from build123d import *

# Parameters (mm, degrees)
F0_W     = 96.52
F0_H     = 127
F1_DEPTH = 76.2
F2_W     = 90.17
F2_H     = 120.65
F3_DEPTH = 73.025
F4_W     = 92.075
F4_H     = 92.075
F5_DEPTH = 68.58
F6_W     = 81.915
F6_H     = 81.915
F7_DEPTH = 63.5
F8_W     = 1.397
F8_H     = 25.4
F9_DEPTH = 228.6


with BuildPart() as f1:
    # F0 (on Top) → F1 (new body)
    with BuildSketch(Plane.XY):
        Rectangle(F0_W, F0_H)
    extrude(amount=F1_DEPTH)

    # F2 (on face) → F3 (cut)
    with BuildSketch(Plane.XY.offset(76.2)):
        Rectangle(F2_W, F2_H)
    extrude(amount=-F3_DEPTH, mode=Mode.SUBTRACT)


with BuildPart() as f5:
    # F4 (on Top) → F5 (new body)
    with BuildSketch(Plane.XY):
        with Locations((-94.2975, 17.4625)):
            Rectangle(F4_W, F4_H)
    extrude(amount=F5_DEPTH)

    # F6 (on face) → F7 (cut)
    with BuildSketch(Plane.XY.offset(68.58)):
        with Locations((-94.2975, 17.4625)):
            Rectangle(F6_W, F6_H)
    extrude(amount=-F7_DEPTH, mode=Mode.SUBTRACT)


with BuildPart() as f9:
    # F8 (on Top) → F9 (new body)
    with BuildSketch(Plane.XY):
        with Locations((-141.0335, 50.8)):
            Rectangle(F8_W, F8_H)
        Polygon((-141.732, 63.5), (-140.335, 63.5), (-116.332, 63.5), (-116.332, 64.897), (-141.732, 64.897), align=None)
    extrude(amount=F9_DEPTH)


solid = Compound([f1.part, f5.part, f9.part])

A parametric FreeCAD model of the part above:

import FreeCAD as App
import Part
import Sketcher

V = App.Vector
Q = App.Units.Quantity

doc = App.newDocument("Part")
params = doc.addObject("Spreadsheet::Sheet", "Params")
for row, (alias, value) in enumerate([
    ("sketch1_height", "5 in"),
    ("sketch1_width", "3.8 in"),
    ("pad1_length", "3 in"),
    ("sketch2_width", "3.55 in"),
    ("sketch2_height", "4.75 in"),
    ("pocket1_length", "2.875 in"),
    ("sketch3_width", "3.625 in"),
    ("pad2_length", "2.7 in"),
    ("sketch4_width", "3.225 in"),
    ("pocket2_length", "2.5 in"),
    ("sketch5_width", "1 in"),
    ("sketch5_width2", "0.055 in"),
    ("pad3_length", "9 in"),
], start=1):
    params.set(f"A{row}", alias)
    params.set(f"B{row}", "=" + value)
    params.setAlias(f"B{row}", alias)

body = doc.addObject("PartDesign::Body", "Body")

sketch1 = doc.addObject("Sketcher::SketchObject", "Sketch")
body.addObject(sketch1)
sketch1.AttachmentSupport = (doc.XY_Plane, [""])
sketch1.MapMode = "FlatFace"
sketch1.addGeometry([
    Part.LineSegment(V(-48, 64, 0), V(-48, -64, 0)),
    Part.LineSegment(V(-48, -64, 0), V(48, -64, 0)),
    Part.LineSegment(V(48, -64, 0), V(48, 64, 0)),
    Part.LineSegment(V(48, 64, 0), V(-48, 64, 0)),
], False)
sketch1.addConstraint([
    Sketcher.Constraint("Coincident", 0, 2, 1, 1),
    Sketcher.Constraint("Coincident", 1, 2, 2, 1),
    Sketcher.Constraint("Coincident", 2, 2, 3, 1),
    Sketcher.Constraint("Coincident", 3, 2, 0, 1),
    Sketcher.Constraint("Vertical", 0),
    Sketcher.Constraint("Horizontal", 1),
    Sketcher.Constraint("Vertical", 2),
    Sketcher.Constraint("Horizontal", 3),
    Sketcher.Constraint("Symmetric", 0, 2, 2, 2, -1, 1),
    Sketcher.Constraint("DistanceY", 0, 2, 0, 1, Q("5 in")),
    Sketcher.Constraint("DistanceX", 1, 1, 1, 2, Q("3.8 in")),
])
sketch1.setExpression("Constraints[9]", "Params.sketch1_height")
sketch1.setExpression("Constraints[10]", "Params.sketch1_width")
pad1 = doc.addObject("PartDesign::Pad", "Pad")
body.addObject(pad1)
pad1.Profile = sketch1
pad1.setExpression("Length", "Params.pad1_length")

sketch2 = doc.addObject("Sketcher::SketchObject", "Sketch001")
body.addObject(sketch2)
sketch2.AttachmentSupport = (doc.XY_Plane, [""])
sketch2.MapMode = "FlatFace"
sketch2.AttachmentOffset = App.Placement(V(0, 0, 3 * 25.4), App.Rotation())
sketch2.addGeometry([
    Part.LineSegment(V(-45, 60, 0), V(-45, -60, 0)),
    Part.LineSegment(V(-45, -60, 0), V(45, -60, 0)),
    Part.LineSegment(V(45, -60, 0), V(45, 60, 0)),
    Part.LineSegment(V(45, 60, 0), V(-45, 60, 0)),
], False)
sketch2.addConstraint([
    Sketcher.Constraint("Coincident", 0, 2, 1, 1),
    Sketcher.Constraint("Coincident", 1, 2, 2, 1),
    Sketcher.Constraint("Coincident", 2, 2, 3, 1),
    Sketcher.Constraint("Coincident", 3, 2, 0, 1),
    Sketcher.Constraint("Vertical", 0),
    Sketcher.Constraint("Horizontal", 1),
    Sketcher.Constraint("Vertical", 2),
    Sketcher.Constraint("Horizontal", 3),
    Sketcher.Constraint("Symmetric", 0, 2, 2, 2, -1, 1),
    Sketcher.Constraint("DistanceX", 1, 1, 1, 2, Q("3.55 in")),
    Sketcher.Constraint("DistanceY", 0, 2, 0, 1, Q("4.75 in")),
])
sketch2.setExpression("Constraints[9]", "Params.sketch2_width")
sketch2.setExpression("Constraints[10]", "Params.sketch2_height")
pocket1 = doc.addObject("PartDesign::Pocket", "Pocket")
body.addObject(pocket1)
pocket1.Profile = sketch2
pocket1.setExpression("Length", "Params.pocket1_length")
body2 = doc.addObject("PartDesign::Body", "Body001")

sketch3 = doc.addObject("Sketcher::SketchObject", "Sketch002")
body2.addObject(sketch3)
sketch3.AttachmentSupport = (doc.getObject("XY_Plane001"), [""])
sketch3.MapMode = "FlatFace"
sketch3.addGeometry([
    Part.LineSegment(V(-140, 64, 0), V(-140, -29, 0)),
    Part.LineSegment(V(-140, -29, 0), V(-48, -29, 0)),
    Part.LineSegment(V(-48, -29, 0), V(-48, 64, 0)),
    Part.LineSegment(V(-48, 64, 0), V(-140, 64, 0)),
], False)
sketch3.addConstraint([
    Sketcher.Constraint("Coincident", 0, 2, 1, 1),
    Sketcher.Constraint("Coincident", 1, 2, 2, 1),
    Sketcher.Constraint("Coincident", 2, 2, 3, 1),
    Sketcher.Constraint("Coincident", 3, 2, 0, 1),
    Sketcher.Constraint("Vertical", 0),
    Sketcher.Constraint("Horizontal", 1),
    Sketcher.Constraint("Vertical", 2),
    Sketcher.Constraint("Horizontal", 3),
    Sketcher.Constraint("Equal", 3, 0),
    Sketcher.Constraint("DistanceX", 1, 2, -1, 1, Q("1.9 in")),
    Sketcher.Constraint("DistanceY", -1, 1, 2, 2, Q("2.5 in")),
    Sketcher.Constraint("DistanceX", 1, 1, 1, 2, Q("3.625 in")),
])
sketch3.setExpression("Constraints[11]", "Params.sketch3_width")
pad2 = doc.addObject("PartDesign::Pad", "Pad001")
body2.addObject(pad2)
pad2.Profile = sketch3
pad2.setExpression("Length", "Params.pad2_length")

sketch4 = doc.addObject("Sketcher::SketchObject", "Sketch003")
body2.addObject(sketch4)
sketch4.AttachmentSupport = (doc.getObject("XY_Plane001"), [""])
sketch4.MapMode = "FlatFace"
sketch4.AttachmentOffset = App.Placement(V(0, 0, 2.7 * 25.4), App.Rotation())
sketch4.addGeometry([
    Part.LineSegment(V(-135, 58, 0), V(-135, -23, 0)),
    Part.LineSegment(V(-135, -23, 0), V(-53, -23, 0)),
    Part.LineSegment(V(-53, -23, 0), V(-53, 58, 0)),
    Part.LineSegment(V(-53, 58, 0), V(-135, 58, 0)),
], False)
sketch4.addConstraint([
    Sketcher.Constraint("Coincident", 0, 2, 1, 1),
    Sketcher.Constraint("Coincident", 1, 2, 2, 1),
    Sketcher.Constraint("Coincident", 2, 2, 3, 1),
    Sketcher.Constraint("Coincident", 3, 2, 0, 1),
    Sketcher.Constraint("Vertical", 0),
    Sketcher.Constraint("Horizontal", 1),
    Sketcher.Constraint("Vertical", 2),
    Sketcher.Constraint("Horizontal", 3),
    Sketcher.Constraint("Equal", 3, 0),
    Sketcher.Constraint("DistanceX", 1, 2, -1, 1, Q("2.1 in")),
    Sketcher.Constraint("DistanceY", -1, 1, 2, 2, Q("2.3 in")),
    Sketcher.Constraint("DistanceX", 1, 1, 1, 2, Q("3.225 in")),
])
sketch4.setExpression("Constraints[11]", "Params.sketch4_width")
pocket2 = doc.addObject("PartDesign::Pocket", "Pocket001")
body2.addObject(pocket2)
pocket2.Profile = sketch4
pocket2.setExpression("Length", "Params.pocket2_length")
body3 = doc.addObject("PartDesign::Body", "Body002")

sketch5 = doc.addObject("Sketcher::SketchObject", "Sketch004")
body3.addObject(sketch5)
sketch5.AttachmentSupport = (doc.getObject("XY_Plane002"), [""])
sketch5.MapMode = "FlatFace"
sketch5.addGeometry([
    Part.LineSegment(V(-141.7, 38.1, 0), V(-140.3, 38.1, 0)),
    Part.LineSegment(V(-140.3, 38.1, 0), V(-140.3, 63.5, 0)),
    Part.LineSegment(V(-140.3, 63.5, 0), V(-116.3, 63.5, 0)),
    Part.LineSegment(V(-116.3, 63.5, 0), V(-116.3, 64.9, 0)),
    Part.LineSegment(V(-116.3, 64.9, 0), V(-141.7, 64.9, 0)),
    Part.LineSegment(V(-141.7, 64.9, 0), V(-141.7, 38.1, 0)),
], False)
sketch5.addConstraint([
    Sketcher.Constraint("Coincident", 0, 2, 1, 1),
    Sketcher.Constraint("Coincident", 1, 2, 2, 1),
    Sketcher.Constraint("Coincident", 2, 2, 3, 1),
    Sketcher.Constraint("Coincident", 3, 2, 4, 1),
    Sketcher.Constraint("Coincident", 4, 2, 5, 1),
    Sketcher.Constraint("Coincident", 5, 2, 0, 1),
    Sketcher.Constraint("Horizontal", 0),
    Sketcher.Constraint("Vertical", 1),
    Sketcher.Constraint("Horizontal", 2),
    Sketcher.Constraint("Vertical", 3),
    Sketcher.Constraint("Horizontal", 4),
    Sketcher.Constraint("Vertical", 5),
    Sketcher.Constraint("Equal", 4, 1),
    Sketcher.Constraint("Equal", 0, 3),
    Sketcher.Constraint("DistanceX", 4, 2, 4, 1, Q("1 in")),
    Sketcher.Constraint("DistanceY", -1, 1, 0, 2, Q("1.5 in")),
    Sketcher.Constraint("DistanceX", 0, 1, 0, 2, Q("0.055 in")),
    Sketcher.Constraint("DistanceX", 2, 2, -1, 1, Q("4.58 in")),
])
sketch5.setExpression("Constraints[14]", "Params.sketch5_width")
sketch5.setExpression("Constraints[16]", "Params.sketch5_width2")
pad3 = doc.addObject("PartDesign::Pad", "Pad002")
body3.addObject(pad3)
pad3.Profile = sketch5
pad3.setExpression("Length", "Params.pad3_length")

doc.recompute()
